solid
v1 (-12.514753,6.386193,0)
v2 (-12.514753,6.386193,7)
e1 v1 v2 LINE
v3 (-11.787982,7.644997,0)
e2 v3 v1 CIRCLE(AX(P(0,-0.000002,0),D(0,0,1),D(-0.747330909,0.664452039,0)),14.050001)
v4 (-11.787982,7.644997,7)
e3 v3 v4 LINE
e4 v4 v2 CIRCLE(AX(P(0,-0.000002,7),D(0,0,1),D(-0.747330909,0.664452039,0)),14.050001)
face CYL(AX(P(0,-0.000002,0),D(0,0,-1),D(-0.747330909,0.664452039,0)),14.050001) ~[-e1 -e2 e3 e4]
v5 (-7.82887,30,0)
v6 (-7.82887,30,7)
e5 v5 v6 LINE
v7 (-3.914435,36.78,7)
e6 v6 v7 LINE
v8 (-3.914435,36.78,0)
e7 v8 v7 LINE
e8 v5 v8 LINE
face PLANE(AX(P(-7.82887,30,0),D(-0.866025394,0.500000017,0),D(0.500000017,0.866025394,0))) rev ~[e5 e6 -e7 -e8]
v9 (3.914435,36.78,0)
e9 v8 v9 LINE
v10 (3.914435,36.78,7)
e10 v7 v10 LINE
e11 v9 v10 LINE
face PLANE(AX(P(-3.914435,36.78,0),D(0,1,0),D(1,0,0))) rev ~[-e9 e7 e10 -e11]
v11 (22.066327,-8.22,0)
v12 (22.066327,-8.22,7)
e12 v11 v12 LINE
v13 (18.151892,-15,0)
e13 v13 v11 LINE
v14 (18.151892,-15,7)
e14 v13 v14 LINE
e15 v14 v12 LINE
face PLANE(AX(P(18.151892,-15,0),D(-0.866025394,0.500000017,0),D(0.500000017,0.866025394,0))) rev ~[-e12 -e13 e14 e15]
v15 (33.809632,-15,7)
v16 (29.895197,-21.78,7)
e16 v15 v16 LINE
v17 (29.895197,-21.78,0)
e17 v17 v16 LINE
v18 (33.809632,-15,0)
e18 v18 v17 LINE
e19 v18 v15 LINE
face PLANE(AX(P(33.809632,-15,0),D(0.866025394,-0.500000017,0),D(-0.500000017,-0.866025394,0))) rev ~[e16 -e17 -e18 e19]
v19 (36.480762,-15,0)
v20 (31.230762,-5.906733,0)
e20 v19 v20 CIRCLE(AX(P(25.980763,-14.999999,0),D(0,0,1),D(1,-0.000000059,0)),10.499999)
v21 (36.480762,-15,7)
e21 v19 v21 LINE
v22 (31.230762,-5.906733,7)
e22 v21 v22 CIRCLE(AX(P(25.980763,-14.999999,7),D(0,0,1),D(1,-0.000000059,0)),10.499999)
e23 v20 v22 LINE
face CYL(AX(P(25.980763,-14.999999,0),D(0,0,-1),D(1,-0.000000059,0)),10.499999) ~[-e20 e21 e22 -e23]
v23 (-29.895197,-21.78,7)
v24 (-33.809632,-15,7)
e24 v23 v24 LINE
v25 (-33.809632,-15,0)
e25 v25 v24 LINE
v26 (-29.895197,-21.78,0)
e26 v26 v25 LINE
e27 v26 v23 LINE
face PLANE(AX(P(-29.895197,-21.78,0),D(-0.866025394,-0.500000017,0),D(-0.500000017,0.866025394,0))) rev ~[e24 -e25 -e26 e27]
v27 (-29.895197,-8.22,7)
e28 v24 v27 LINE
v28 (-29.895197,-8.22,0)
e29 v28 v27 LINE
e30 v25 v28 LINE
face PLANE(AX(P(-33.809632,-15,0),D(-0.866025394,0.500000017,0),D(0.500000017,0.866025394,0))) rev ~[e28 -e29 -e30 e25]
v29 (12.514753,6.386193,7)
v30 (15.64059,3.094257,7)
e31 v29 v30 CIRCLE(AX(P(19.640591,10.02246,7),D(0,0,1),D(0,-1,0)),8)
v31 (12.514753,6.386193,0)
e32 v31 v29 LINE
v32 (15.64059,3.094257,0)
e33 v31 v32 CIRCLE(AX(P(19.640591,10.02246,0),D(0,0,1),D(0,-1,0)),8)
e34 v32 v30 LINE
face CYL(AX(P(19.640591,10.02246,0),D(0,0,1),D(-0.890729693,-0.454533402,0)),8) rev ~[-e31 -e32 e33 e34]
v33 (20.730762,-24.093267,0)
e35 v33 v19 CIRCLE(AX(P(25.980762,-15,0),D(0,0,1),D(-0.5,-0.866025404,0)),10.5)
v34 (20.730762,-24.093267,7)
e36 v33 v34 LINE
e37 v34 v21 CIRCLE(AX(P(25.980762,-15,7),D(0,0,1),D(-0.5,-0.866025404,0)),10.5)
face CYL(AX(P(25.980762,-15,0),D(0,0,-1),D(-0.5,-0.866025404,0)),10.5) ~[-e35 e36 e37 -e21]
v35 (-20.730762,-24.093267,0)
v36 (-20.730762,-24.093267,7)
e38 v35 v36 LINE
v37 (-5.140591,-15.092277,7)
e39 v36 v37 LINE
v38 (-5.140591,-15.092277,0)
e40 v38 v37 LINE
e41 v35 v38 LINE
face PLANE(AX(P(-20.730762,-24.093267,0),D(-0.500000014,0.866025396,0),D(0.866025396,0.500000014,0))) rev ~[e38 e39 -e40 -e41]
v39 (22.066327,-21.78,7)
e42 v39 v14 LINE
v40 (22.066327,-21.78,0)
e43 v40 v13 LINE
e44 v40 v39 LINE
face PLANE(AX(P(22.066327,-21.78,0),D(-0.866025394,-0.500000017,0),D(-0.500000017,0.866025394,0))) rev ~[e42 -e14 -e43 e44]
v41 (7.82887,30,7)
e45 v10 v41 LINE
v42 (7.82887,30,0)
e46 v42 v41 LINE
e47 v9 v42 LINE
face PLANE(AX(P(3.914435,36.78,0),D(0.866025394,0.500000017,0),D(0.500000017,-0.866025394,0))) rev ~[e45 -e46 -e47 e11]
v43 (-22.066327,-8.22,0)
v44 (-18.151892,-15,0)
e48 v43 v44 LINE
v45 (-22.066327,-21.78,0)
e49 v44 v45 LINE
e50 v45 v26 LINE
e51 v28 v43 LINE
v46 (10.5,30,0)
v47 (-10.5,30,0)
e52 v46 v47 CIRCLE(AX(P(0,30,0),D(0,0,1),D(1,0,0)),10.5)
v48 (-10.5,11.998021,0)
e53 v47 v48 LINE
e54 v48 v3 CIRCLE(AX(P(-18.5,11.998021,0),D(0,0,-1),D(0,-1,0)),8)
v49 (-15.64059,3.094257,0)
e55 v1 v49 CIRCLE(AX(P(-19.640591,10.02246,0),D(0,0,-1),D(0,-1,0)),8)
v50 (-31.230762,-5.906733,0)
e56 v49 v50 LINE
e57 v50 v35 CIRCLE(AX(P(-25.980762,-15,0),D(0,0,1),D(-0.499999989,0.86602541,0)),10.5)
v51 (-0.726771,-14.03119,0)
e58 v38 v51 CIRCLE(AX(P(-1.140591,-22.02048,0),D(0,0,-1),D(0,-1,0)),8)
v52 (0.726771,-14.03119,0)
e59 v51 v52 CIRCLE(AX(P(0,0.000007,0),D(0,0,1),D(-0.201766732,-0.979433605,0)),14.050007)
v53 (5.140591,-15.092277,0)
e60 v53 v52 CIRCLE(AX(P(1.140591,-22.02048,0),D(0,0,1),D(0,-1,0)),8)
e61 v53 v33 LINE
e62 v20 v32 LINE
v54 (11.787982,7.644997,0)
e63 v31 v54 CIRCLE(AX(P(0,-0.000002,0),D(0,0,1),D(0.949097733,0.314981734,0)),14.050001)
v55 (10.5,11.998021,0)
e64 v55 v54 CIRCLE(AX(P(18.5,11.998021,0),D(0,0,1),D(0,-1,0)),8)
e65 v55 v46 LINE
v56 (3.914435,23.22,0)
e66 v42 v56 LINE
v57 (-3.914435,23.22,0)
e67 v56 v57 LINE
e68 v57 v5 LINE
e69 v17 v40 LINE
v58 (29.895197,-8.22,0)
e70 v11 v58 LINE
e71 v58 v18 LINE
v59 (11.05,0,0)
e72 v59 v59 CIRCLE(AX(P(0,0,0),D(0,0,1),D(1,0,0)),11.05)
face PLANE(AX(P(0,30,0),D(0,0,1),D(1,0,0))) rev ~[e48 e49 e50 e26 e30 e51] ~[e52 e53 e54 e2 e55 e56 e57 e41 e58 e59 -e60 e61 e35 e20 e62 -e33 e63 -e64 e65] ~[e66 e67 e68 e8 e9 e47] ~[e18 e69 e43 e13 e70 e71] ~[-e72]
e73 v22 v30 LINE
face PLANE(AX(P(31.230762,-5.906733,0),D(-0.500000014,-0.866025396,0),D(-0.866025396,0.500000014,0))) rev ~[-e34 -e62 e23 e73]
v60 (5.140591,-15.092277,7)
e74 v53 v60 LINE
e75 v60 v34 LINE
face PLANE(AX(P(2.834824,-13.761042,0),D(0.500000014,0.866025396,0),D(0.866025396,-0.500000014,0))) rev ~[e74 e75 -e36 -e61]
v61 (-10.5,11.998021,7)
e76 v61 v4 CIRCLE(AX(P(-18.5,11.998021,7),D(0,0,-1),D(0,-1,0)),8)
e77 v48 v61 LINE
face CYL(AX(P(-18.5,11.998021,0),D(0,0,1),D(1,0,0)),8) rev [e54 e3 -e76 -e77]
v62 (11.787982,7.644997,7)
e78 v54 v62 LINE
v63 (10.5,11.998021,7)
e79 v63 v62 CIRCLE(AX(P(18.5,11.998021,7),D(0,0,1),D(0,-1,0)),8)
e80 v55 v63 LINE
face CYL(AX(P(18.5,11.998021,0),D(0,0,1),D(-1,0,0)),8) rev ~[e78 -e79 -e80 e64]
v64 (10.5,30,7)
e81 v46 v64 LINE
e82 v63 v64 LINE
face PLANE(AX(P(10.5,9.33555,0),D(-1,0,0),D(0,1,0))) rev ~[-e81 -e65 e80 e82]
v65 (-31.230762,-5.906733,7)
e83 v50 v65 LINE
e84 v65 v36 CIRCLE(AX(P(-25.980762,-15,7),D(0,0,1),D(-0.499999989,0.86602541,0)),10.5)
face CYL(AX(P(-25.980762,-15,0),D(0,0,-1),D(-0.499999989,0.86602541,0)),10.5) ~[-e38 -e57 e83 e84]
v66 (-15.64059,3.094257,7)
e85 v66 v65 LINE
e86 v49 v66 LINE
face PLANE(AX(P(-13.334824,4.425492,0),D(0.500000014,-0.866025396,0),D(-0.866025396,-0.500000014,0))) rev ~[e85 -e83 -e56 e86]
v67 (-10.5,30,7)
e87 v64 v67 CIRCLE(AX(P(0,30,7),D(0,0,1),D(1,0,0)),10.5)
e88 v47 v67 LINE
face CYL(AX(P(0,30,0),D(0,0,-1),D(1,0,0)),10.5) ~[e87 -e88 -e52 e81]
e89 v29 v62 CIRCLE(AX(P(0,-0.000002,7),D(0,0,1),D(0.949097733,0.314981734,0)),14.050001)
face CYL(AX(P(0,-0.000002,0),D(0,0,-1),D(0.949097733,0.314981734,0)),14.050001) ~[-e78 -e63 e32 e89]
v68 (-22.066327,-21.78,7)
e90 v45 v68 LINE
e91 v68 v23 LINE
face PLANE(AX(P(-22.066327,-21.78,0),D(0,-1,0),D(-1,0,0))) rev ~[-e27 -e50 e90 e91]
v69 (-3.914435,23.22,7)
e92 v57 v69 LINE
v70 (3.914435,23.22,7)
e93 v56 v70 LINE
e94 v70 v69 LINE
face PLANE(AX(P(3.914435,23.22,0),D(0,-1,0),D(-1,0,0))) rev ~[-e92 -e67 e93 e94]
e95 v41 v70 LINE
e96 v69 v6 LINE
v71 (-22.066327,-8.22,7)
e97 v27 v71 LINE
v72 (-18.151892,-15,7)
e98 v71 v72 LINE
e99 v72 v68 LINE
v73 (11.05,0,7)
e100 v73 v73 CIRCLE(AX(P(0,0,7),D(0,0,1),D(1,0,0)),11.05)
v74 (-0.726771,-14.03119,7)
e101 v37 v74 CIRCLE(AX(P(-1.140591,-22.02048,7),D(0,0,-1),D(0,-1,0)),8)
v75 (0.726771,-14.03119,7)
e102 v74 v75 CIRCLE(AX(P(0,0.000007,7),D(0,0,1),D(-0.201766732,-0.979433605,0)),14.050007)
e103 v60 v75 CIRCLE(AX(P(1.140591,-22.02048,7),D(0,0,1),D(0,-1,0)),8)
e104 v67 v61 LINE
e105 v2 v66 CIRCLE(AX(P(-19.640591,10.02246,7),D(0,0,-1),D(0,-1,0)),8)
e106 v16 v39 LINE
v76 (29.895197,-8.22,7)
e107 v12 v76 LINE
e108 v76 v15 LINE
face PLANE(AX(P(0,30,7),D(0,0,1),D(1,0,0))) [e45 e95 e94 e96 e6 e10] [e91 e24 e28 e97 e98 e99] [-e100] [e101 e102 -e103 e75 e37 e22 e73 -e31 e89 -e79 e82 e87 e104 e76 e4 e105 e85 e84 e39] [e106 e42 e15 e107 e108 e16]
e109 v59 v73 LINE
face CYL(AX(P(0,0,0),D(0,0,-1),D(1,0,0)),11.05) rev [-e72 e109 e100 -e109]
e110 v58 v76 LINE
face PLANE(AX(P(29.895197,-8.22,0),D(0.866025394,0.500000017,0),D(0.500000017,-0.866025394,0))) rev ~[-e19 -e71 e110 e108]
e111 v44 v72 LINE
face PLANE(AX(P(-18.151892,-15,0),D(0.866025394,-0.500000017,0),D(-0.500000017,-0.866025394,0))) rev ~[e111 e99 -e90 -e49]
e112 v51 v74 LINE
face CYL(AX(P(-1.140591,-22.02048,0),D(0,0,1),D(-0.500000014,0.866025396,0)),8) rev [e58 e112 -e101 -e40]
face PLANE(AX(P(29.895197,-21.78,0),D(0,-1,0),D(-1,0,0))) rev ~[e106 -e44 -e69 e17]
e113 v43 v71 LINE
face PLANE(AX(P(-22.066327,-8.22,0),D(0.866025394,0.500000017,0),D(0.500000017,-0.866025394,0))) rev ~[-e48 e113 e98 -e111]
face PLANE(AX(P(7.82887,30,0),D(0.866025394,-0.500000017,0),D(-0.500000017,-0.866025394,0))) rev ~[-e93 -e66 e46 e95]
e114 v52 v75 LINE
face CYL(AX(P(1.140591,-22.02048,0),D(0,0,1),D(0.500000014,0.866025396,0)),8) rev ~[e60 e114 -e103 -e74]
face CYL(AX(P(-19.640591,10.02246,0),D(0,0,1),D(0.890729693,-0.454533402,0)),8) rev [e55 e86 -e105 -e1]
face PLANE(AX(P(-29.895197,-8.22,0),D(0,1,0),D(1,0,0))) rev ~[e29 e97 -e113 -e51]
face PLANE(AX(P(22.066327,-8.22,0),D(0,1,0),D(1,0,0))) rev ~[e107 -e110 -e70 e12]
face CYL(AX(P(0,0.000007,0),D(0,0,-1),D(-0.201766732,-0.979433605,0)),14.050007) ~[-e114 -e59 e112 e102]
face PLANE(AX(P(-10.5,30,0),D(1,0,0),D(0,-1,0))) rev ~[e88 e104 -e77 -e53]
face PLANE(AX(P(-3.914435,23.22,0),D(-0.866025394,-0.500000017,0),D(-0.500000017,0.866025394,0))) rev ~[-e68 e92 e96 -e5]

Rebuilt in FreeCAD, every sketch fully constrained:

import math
import FreeCAD as App
import Part
import Sketcher
from FreeCAD import Vector
Q = App.Units.Quantity


def edges_at(feature, points):
    """Names of the edges that pass closest to the given points."""
    edges = feature.Shape.Edges
    near = lambda p: min(range(len(edges)), key=lambda i: edges[i].distToShape(Part.Vertex(*p))[0])
    return sorted({f"Edge{near(p) + 1}" for p in points})


def add_polygon(sketch, points):
    """Adds a closed chain of lines whose ends are joined by coincident constraints."""
    first, n = sketch.GeometryCount, len(points)
    for a, b in zip(points, points[1:] + points[:1]):
        sketch.addGeometry(Part.LineSegment(App.Vector(*a, 0), App.Vector(*b, 0)), False)
    for i in range(n):
        sketch.addConstraint(Sketcher.Constraint("Coincident", first + i, 2, first + (i + 1) % n, 1))

doc = App.newDocument("Part")
body = doc.addObject("PartDesign::Body", "Body")

sketch1 = doc.addObject("Sketcher::SketchObject", "Sketch")
body.addObject(sketch1)
sketch1.AttachmentSupport = (doc.XY_Plane, [""])
sketch1.MapMode = "FlatFace"
sketch1.addGeometry(Part.ArcOfCircle(Part.Circle(Vector(0, 30, 0), Vector(0, 0, 1), 10.5), math.radians(0), math.radians(180)), False)
sketch1.addGeometry(Part.LineSegment(Vector(-10.5, 30, 0), Vector(-10.5, 9.33555, 0)), False)
sketch1.addGeometry(Part.ArcOfCircle(Part.Circle(Vector(0, -0.000002, 0), Vector(0, 0, 1), 14.050001), math.radians(138.359699), math.radians(161.640289)), False)
sketch1.addGeometry(Part.LineSegment(Vector(-13.334824, 4.425492, 0), Vector(-31.230762, -5.906733, 0)), False)
sketch1.addGeometry(Part.ArcOfCircle(Part.Circle(Vector(-25.980762, -15, 0), Vector(0, 0, 1), 10.5), math.radians(119.999999), math.radians(299.999999)), False)
sketch1.addGeometry(Part.LineSegment(Vector(-20.730762, -24.093267, 0), Vector(-2.834824, -13.761042, 0)), False)
sketch1.addGeometry(Part.ArcOfCircle(Part.Circle(Vector(0, 0.000007, 0), Vector(0, 0, 1), 14.050007), math.radians(-101.640292), math.radians(-78.359708)), False)
sketch1.addGeometry(Part.LineSegment(Vector(2.834824, -13.761042, 0), Vector(20.730762, -24.093267, 0)), False)
sketch1.addGeometry(Part.ArcOfCircle(Part.Circle(Vector(25.980762, -15, 0), Vector(0, 0, 1), 10.5), math.radians(-120), math.radians(0.000001)), False)
sketch1.addGeometry(Part.ArcOfCircle(Part.Circle(Vector(25.980763, -14.999999, 0), Vector(0, 0, 1), 10.499999), math.radians(-0.000003), math.radians(60.000002)), False)
sketch1.addGeometry(Part.LineSegment(Vector(31.230762, -5.906733, 0), Vector(13.334824, 4.425492, 0)), False)
sketch1.addGeometry(Part.ArcOfCircle(Part.Circle(Vector(0, -0.000002, 0), Vector(0, 0, 1), 14.050001), math.radians(18.359711), math.radians(41.640301)), False)
sketch1.addGeometry(Part.LineSegment(Vector(10.5, 9.33555, 0), Vector(10.5, 30, 0)), False)
add_polygon(sketch1, [(-33.809632, -15), (-29.895197, -8.22), (-22.066327, -8.22), (-18.151892, -15), (-22.066327, -21.78), (-29.895197, -21.78)])
add_polygon(sketch1, [(29.895197, -21.78), (22.066327, -21.78), (18.151892, -15), (22.066327, -8.22), (29.895197, -8.22), (33.809632, -15)])
sketch1.addGeometry(Part.Circle(Vector(0, 0, 0), Vector(0, 0, 1), 11.05), False)
add_polygon(sketch1, [(3.914435, 36.78), (7.82887, 30), (3.914435, 23.22), (-3.914435, 23.22), (-7.82887, 30), (-3.914435, 36.78)])
sketch1.addConstraint([
    Sketcher.Constraint("Tangent", 0, 2, 1, 1),
    Sketcher.Constraint("Coincident", 1, 2, 2, 1),
    Sketcher.Constraint("Coincident", 2, 2, 3, 1),
    Sketcher.Constraint("Tangent", 3, 2, 4, 1),
    Sketcher.Constraint("Tangent", 4, 2, 5, 1),
    Sketcher.Constraint("Coincident", 5, 2, 6, 1),
    Sketcher.Constraint("Coincident", 6, 2, 7, 1),
    Sketcher.Constraint("Tangent", 7, 2, 8, 1),
    Sketcher.Constraint("Tangent", 8, 2, 9, 1),
    Sketcher.Constraint("Tangent", 9, 2, 10, 1),
    Sketcher.Constraint("Coincident", 10, 2, 11, 1),
    Sketcher.Constraint("Coincident", 11, 2, 12, 1),
    Sketcher.Constraint("Tangent", 12, 2, 0, 1),
    Sketcher.Constraint("Vertical", 1),
    Sketcher.Constraint("Vertical", 12),
    Sketcher.Constraint("Horizontal", 14),
    Sketcher.Constraint("Horizontal", 17),
    Sketcher.Constraint("Horizontal", 19),
    Sketcher.Constraint("Horizontal", 22),
    Sketcher.Constraint("Horizontal", 28),
    Sketcher.Constraint("Horizontal", 31),
    Sketcher.Constraint("Coincident", 2, 3, -1, 1),
    Sketcher.Constraint("Coincident", 6, 3, -1, 1),
    Sketcher.Constraint("Coincident", 11, 3, -1, 1),
    Sketcher.Constraint("Coincident", 25, 3, -1, 1),
    Sketcher.Constraint("Equal", 0, 4),
    Sketcher.Constraint("Equal", 4, 8),
    Sketcher.Constraint("Equal", 8, 9),
    Sketcher.Constraint("Equal", 2, 11),
    Sketcher.Constraint("Symmetric", 4, 3, 8, 3, -2),
    Sketcher.Constraint("Symmetric", 16, 2, 19, 2, -2),
    Sketcher.Constraint("Symmetric", 15, 2, 20, 2, -2),
    Sketcher.Constraint("Symmetric", 14, 2, 21, 2, -2),
    Sketcher.Constraint("Symmetric", 18, 2, 23, 2, -2),
    Sketcher.Constraint("Symmetric", 26, 2, 29, 2, -2),
    Sketcher.Constraint("PointOnObject", 0, 3, -2),
    Sketcher.Constraint("Parallel", 3, 5),
    Sketcher.Constraint("Parallel", 7, 10),
    Sketcher.Constraint("Perpendicular", 10, 13),
    Sketcher.Constraint("Perpendicular", 5, 15),
    Sketcher.Constraint("Parallel", 13, 16),
    Sketcher.Constraint("Parallel", 15, 18),
    Sketcher.Constraint("Parallel", 18, 20),
    Sketcher.Constraint("Parallel", 20, 23),
    Sketcher.Constraint("Parallel", 21, 24),
    Sketcher.Constraint("Parallel", 23, 26),
    Sketcher.Constraint("Parallel", 24, 27),
    Sketcher.Constraint("Parallel", 26, 29),
    Sketcher.Constraint("Parallel", 27, 30),
    Sketcher.Constraint("Horizontal", 9, 3, 8, 2),
    Sketcher.Constraint("Horizontal", 8, 2, 15, 2),
    Sketcher.Constraint("Horizontal", 15, 2, 18, 2),
    Sketcher.Constraint("Horizontal", 12, 2, 26, 2),
    Sketcher.Constraint("Vertical", 14, 2, 16, 2),
    Sketcher.Constraint("Vertical", 28, 2, 30, 2),
    Sketcher.Constraint("Equal", 22, 28),
    Sketcher.Constraint("Equal", 3, 5),
    Sketcher.Constraint("Equal", 24, 26),
    Sketcher.Constraint("Diameter", 25, Q("22.1 mm")),
    Sketcher.Constraint("Radius", 0, Q("10.5 mm")),
    Sketcher.Constraint("Angle", 3, Q("-149.999999 deg")),
    Sketcher.Constraint("Radius", 2, Q("14.050001 mm")),
    Sketcher.Constraint("DistanceY", -1, 1, 0, 3, Q("30 mm")),
    Sketcher.Constraint("DistanceY", 4, 3, -1, 1, Q("15 mm")),
    Sketcher.Constraint("DistanceY", 13, 2, -1, 1, Q("8.22 mm")),
    Sketcher.Constraint("Radius", 6, Q("14.050007 mm")),
    Sketcher.Constraint("DistanceX", 14, 1, 14, 2, Q("7.82887 mm")),
    Sketcher.Constraint("DistanceX", 15, 2, -1, 1, Q("18.151892 mm")),
])
pad1 = doc.addObject("PartDesign::Pad", "Pad")
body.addObject(pad1)
pad1.Profile = sketch1
pad1.Length = 7
doc.recompute()

fillet = doc.addObject("PartDesign::Fillet", "Fillet")
body.addObject(fillet)
fillet.Base = (pad1, edges_at(pad1, [
    (-10.5, 9.336, 3.5),
    (-13.335, 4.425, 3.5),
    (10.5, 9.336, 3.5),
    (13.335, 4.425, 3.5),
    (-2.835, -13.761, 3.5),
    (2.835, -13.761, 3.5),
]))
fillet.Radius = 8

doc.recompute()
